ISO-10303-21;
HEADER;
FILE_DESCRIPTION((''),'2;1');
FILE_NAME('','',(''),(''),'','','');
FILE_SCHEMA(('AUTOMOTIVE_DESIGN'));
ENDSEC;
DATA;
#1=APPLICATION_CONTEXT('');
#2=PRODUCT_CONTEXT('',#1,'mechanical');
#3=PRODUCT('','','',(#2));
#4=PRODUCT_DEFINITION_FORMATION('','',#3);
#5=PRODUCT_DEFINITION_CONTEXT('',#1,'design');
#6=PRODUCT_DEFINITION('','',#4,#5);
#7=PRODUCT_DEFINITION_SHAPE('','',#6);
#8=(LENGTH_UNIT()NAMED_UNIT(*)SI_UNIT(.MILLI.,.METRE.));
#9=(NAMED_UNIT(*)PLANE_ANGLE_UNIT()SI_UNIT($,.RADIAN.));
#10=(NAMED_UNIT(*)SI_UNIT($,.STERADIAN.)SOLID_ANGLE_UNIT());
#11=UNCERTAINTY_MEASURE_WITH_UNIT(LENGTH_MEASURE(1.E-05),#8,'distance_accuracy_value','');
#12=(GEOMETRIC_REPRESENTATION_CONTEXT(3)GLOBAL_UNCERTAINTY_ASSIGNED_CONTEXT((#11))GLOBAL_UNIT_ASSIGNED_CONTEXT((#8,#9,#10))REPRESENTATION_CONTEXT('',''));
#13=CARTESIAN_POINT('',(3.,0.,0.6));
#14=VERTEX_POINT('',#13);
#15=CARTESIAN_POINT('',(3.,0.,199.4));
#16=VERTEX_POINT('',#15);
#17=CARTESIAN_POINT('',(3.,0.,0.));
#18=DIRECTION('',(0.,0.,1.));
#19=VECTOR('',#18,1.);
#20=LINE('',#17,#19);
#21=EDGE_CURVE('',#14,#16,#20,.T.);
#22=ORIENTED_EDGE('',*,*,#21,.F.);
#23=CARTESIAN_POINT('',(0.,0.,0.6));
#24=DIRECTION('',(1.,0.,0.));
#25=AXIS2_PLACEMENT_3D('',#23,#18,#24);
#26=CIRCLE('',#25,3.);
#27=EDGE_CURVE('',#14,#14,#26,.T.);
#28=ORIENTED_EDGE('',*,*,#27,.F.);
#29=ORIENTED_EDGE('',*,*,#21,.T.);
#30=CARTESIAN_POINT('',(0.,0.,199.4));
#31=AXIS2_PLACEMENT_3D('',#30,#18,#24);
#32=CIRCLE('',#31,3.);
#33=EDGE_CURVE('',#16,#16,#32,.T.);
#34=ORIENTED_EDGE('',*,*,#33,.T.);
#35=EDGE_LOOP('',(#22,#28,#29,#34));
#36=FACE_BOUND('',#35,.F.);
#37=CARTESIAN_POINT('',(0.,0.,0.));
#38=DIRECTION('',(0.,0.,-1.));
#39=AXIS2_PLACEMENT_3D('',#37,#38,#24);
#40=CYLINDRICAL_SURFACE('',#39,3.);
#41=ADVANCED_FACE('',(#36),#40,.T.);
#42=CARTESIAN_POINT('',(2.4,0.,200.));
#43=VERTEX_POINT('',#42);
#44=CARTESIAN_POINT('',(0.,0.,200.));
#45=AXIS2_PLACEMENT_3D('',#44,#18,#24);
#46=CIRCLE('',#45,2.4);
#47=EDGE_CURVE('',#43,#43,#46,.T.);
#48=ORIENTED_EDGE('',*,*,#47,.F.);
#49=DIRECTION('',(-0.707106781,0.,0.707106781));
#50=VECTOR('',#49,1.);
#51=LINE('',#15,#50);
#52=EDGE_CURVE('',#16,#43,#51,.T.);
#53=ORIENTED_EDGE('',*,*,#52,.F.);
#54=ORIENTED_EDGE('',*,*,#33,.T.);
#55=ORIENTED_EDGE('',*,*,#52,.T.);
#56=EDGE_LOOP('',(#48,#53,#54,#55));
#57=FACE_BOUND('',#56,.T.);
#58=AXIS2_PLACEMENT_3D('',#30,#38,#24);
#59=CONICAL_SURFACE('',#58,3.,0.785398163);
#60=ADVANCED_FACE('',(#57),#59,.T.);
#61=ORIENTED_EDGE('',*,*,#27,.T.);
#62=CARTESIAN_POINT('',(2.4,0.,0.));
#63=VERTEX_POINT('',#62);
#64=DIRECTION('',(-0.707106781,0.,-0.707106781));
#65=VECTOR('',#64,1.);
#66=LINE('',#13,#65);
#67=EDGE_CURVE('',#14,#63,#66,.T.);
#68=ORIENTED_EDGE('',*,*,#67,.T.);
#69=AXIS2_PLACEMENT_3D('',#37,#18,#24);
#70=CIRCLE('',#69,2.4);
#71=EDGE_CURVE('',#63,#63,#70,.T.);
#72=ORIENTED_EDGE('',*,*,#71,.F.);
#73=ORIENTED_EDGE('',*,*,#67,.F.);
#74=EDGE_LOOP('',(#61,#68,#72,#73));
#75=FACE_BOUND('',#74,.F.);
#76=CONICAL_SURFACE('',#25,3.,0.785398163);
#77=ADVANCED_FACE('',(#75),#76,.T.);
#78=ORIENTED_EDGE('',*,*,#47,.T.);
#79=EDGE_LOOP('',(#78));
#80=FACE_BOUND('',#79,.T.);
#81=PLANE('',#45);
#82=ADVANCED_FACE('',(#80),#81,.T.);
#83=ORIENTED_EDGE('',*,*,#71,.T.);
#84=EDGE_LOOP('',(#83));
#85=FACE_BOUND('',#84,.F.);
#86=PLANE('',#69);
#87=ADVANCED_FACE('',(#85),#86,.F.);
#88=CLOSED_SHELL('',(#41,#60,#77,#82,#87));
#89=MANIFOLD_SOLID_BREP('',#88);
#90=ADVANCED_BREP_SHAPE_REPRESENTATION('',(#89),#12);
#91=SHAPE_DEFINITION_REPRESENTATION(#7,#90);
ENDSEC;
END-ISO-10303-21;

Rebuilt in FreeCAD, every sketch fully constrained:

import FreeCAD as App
import Part
import Sketcher
from FreeCAD import Vector


def edges_at(feature, points):
    """Names of the edges that pass closest to the given points."""
    edges = feature.Shape.Edges
    near = lambda p: min(range(len(edges)), key=lambda i: edges[i].distToShape(Part.Vertex(*p))[0])
    return sorted({f"Edge{near(p) + 1}" for p in points})

doc = App.newDocument("Part")
body = doc.addObject("PartDesign::Body", "Body")

sketch1 = body.newObject("Sketcher::SketchObject", "Sketch")
sketch1.AttachmentSupport = (doc.getObject("XY_Plane"), [""])
sketch1.MapMode = "FlatFace"
sketch1.addGeometry(Part.Circle(Vector(0, 0, 0), Vector(0, 0, 1), 3), False)
sketch1.addConstraint([
    Sketcher.Constraint("Coincident", 0, 3, -1, 1),
    Sketcher.Constraint("Diameter", 0, 6.0),
])
pad1 = body.newObject("PartDesign::Pad", "Pad")
pad1.Profile = sketch1
pad1.Length = 200
doc.recompute()

chamfer = body.newObject("PartDesign::Chamfer", "Chamfer")
chamfer.Base = (pad1, edges_at(pad1, [(-3, 0, 0), (-3, 0, 200)]))
chamfer.Size = 0.6

doc.recompute()
